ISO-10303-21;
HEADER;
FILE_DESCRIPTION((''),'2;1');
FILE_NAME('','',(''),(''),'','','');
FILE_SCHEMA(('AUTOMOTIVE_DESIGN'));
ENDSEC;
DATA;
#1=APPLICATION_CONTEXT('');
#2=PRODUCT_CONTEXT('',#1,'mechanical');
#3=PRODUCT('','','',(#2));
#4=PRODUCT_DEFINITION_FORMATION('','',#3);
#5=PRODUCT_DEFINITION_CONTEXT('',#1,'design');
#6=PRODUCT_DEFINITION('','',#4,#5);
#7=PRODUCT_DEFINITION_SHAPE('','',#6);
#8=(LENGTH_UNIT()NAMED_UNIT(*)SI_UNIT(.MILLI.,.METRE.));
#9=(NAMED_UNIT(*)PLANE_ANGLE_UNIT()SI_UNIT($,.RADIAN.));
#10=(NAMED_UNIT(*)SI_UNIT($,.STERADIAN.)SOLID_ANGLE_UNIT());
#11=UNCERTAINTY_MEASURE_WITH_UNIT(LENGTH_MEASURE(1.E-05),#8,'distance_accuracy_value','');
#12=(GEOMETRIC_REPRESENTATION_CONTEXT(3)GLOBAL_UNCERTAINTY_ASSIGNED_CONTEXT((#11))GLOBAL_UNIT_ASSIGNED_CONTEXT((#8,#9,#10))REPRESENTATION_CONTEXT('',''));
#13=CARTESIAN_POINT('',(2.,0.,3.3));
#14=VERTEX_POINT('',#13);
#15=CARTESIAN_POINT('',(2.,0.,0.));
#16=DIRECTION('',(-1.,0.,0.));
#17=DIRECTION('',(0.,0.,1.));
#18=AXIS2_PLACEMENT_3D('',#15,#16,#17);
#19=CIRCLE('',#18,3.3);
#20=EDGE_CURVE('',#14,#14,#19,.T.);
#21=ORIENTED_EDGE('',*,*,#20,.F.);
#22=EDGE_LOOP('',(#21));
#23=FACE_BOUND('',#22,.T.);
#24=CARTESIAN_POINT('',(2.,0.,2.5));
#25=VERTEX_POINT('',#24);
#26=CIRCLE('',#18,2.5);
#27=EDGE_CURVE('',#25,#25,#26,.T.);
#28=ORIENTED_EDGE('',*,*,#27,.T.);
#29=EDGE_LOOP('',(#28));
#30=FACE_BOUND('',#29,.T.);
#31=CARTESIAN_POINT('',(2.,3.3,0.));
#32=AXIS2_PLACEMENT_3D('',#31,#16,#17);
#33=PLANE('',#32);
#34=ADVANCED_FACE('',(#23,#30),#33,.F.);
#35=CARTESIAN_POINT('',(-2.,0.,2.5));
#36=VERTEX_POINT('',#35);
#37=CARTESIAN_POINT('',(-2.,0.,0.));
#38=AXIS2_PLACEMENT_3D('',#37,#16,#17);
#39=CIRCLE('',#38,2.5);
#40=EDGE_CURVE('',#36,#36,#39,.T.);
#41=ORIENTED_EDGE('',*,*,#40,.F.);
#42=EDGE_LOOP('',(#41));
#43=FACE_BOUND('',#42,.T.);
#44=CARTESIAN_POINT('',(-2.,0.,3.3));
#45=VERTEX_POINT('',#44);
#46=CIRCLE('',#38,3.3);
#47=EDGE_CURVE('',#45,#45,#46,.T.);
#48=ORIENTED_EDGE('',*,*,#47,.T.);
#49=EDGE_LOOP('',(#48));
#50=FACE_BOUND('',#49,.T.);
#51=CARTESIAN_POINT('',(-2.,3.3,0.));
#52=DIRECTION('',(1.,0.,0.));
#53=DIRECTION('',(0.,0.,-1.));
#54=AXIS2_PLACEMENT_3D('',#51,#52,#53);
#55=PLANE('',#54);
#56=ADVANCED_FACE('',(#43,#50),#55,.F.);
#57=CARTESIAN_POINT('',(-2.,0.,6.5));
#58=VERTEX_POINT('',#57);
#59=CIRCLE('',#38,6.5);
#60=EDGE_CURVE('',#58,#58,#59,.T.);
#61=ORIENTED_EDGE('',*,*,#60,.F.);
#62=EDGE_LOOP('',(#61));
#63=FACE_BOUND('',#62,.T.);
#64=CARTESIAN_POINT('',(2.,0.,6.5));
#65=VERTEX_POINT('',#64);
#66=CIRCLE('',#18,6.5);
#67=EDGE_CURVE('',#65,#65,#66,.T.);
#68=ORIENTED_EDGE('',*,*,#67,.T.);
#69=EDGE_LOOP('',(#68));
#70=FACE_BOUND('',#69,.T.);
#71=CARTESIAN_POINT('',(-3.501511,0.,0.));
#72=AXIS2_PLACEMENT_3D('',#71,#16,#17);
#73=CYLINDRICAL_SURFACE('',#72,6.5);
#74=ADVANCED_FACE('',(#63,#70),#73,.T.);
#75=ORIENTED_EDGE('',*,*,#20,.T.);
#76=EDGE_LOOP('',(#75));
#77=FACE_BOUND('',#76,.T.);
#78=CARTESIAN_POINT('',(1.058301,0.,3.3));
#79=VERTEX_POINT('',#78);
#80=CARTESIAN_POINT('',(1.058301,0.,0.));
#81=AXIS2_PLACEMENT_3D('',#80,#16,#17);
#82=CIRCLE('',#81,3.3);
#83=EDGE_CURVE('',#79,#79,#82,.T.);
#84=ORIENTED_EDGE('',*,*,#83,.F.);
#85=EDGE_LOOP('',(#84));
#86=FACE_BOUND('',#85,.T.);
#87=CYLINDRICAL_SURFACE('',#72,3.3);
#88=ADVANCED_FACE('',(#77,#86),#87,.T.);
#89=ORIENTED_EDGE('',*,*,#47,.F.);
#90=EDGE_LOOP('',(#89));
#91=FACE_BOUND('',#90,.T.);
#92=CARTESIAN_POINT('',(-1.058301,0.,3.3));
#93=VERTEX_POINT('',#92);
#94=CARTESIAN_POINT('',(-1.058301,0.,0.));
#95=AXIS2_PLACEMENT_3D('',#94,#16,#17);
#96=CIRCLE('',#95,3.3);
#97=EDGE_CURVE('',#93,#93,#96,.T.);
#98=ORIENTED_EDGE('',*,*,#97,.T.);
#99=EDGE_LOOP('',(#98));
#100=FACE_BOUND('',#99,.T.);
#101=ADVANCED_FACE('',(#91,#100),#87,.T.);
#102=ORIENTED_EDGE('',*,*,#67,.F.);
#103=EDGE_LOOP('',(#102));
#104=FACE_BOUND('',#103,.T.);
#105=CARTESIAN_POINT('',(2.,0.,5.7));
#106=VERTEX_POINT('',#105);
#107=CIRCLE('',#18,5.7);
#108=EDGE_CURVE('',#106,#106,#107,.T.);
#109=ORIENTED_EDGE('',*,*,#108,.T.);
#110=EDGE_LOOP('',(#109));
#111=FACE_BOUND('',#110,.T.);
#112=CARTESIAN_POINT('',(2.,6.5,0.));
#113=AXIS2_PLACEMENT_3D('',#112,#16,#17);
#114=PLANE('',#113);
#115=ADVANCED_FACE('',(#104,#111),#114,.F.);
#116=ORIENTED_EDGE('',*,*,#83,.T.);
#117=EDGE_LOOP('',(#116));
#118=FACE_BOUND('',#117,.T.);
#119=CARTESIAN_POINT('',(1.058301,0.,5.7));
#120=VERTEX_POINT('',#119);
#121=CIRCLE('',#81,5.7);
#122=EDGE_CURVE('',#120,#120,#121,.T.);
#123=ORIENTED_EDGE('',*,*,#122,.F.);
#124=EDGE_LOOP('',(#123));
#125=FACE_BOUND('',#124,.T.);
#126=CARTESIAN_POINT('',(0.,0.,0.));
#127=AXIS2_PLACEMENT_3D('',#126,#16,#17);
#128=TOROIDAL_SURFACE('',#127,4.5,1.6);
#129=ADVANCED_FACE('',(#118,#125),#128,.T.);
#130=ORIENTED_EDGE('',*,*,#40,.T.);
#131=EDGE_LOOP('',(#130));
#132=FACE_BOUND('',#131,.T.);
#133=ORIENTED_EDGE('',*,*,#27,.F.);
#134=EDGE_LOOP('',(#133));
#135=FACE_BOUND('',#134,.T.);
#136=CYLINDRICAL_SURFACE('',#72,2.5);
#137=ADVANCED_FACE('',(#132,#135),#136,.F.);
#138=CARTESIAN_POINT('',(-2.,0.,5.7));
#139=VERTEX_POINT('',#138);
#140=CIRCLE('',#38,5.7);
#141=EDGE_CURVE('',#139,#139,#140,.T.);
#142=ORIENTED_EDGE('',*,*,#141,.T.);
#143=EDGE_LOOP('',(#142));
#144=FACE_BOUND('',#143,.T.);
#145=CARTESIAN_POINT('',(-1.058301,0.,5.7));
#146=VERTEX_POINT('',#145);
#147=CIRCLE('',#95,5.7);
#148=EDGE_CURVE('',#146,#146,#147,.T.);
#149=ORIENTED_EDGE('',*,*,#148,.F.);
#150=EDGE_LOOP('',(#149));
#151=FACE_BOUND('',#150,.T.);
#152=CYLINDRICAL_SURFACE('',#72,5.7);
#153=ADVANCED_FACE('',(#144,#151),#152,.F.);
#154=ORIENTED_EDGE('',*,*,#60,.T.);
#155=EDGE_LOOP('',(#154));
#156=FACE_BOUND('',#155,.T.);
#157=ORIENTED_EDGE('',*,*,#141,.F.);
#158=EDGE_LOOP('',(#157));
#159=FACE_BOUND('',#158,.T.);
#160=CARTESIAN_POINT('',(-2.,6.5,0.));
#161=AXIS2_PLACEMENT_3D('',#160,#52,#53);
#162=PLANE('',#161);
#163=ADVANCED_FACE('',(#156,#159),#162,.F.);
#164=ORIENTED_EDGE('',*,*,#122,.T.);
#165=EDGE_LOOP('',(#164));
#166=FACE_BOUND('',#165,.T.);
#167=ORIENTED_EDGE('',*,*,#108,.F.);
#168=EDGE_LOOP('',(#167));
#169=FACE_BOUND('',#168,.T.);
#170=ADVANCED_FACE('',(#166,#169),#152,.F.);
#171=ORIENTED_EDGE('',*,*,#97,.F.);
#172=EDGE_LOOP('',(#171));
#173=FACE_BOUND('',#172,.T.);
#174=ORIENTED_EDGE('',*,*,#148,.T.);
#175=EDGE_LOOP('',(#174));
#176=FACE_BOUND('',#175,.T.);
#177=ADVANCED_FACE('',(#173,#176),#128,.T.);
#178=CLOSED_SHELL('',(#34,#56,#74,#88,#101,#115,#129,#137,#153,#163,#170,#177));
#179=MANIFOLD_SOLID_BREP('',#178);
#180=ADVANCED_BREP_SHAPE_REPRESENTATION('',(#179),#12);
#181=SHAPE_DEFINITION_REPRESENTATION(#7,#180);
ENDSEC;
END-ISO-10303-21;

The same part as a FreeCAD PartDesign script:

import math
import FreeCAD as App
import Part
import Sketcher
from FreeCAD import Vector
Q = App.Units.Quantity

doc = App.newDocument("Part")
body = doc.addObject("PartDesign::Body", "Body")

# Sketch on XY plane
sketch1 = body.newObject("Sketcher::SketchObject", "Sketch")
sketch1.AttachmentSupport = (doc.getObject("XY_Plane"), [""])
sketch1.MapMode = "FlatFace"
sketch1.addGeometry([
    Part.LineSegment(Vector(2, 6.5, 0), Vector(-2, 6.5, 0)),  # 0
    Part.LineSegment(Vector(-2, 6.5, 0), Vector(-2, 5.7, 0)),  # 1
    Part.LineSegment(Vector(-2, 5.7, 0), Vector(-1.058301, 5.7, 0)),  # 2
    Part.ArcOfCircle(Part.Circle(Vector(0, 4.5, 0), Vector(0, 0, 1), 1.6), math.radians(131.409622), math.radians(228.590378)),  # 3
    Part.LineSegment(Vector(-1.058301, 3.3, 0), Vector(-2, 3.3, 0)),  # 4
    Part.LineSegment(Vector(-2, 3.3, 0), Vector(-2, 2.5, 0)),  # 5
    Part.LineSegment(Vector(-2, 2.5, 0), Vector(2, 2.5, 0)),  # 6
    Part.LineSegment(Vector(2, 2.5, 0), Vector(2, 3.3, 0)),  # 7
    Part.LineSegment(Vector(2, 3.3, 0), Vector(1.058301, 3.3, 0)),  # 8
    Part.ArcOfCircle(Part.Circle(Vector(0, 4.5, 0), Vector(0, 0, 1), 1.6), math.radians(-48.590378), math.radians(48.590378)),  # 9
    Part.LineSegment(Vector(1.058301, 5.7, 0), Vector(2, 5.7, 0)),  # 10
    Part.LineSegment(Vector(2, 5.7, 0), Vector(2, 6.5, 0)),  # 11
], False)
sketch1.addConstraint([
    Sketcher.Constraint("Coincident", 0, 2, 1, 1),
    Sketcher.Constraint("Coincident", 1, 2, 2, 1),
    Sketcher.Constraint("Coincident", 2, 2, 3, 1),
    Sketcher.Constraint("Coincident", 3, 2, 4, 1),
    Sketcher.Constraint("Coincident", 4, 2, 5, 1),
    Sketcher.Constraint("Coincident", 5, 2, 6, 1),
    Sketcher.Constraint("Coincident", 6, 2, 7, 1),
    Sketcher.Constraint("Coincident", 7, 2, 8, 1),
    Sketcher.Constraint("Coincident", 8, 2, 9, 1),
    Sketcher.Constraint("Coincident", 9, 2, 10, 1),
    Sketcher.Constraint("Coincident", 10, 2, 11, 1),
    Sketcher.Constraint("Coincident", 11, 2, 0, 1),
    Sketcher.Constraint("Horizontal", 0),
    Sketcher.Constraint("Vertical", 1),
    Sketcher.Constraint("Horizontal", 2),
    Sketcher.Constraint("Horizontal", 4),
    Sketcher.Constraint("Vertical", 5),
    Sketcher.Constraint("Horizontal", 6),
    Sketcher.Constraint("Vertical", 7),
    Sketcher.Constraint("Horizontal", 8),
    Sketcher.Constraint("Horizontal", 10),
    Sketcher.Constraint("Vertical", 11),
    Sketcher.Constraint("Coincident", 9, 3, 3, 3),
    Sketcher.Constraint("Equal", 3, 9),
    Sketcher.Constraint("Symmetric", 4, 2, 7, 2, -2),
    Sketcher.Constraint("Symmetric", 2, 2, 9, 2, -2),
    Sketcher.Constraint("Vertical", 2, 2, 3, 2),
    Sketcher.Constraint("Vertical", 1, 2, 4, 2),
    Sketcher.Constraint("Vertical", 7, 2, 10, 2),
    Sketcher.Constraint("Equal", 1, 5),
    Sketcher.Constraint("Radius", 3, Q("1.6 mm")),
    Sketcher.Constraint("DistanceX", 0, 2, 0, 1, Q("4 mm")),
    Sketcher.Constraint("DistanceY", 1, 2, 1, 1, Q("0.8 mm")),
    Sketcher.Constraint("DistanceY", 3, 3, 0, 2, Q("2 mm")),
    Sketcher.Constraint("DistanceY", -1, 1, 3, 3, Q("4.5 mm")),
])
revolution = body.newObject("PartDesign::Revolution", "Revolution")
revolution.Profile = sketch1
revolution.ReferenceAxis = (sketch1, ["H_Axis"])
revolution.Angle = 360

doc.recompute()
